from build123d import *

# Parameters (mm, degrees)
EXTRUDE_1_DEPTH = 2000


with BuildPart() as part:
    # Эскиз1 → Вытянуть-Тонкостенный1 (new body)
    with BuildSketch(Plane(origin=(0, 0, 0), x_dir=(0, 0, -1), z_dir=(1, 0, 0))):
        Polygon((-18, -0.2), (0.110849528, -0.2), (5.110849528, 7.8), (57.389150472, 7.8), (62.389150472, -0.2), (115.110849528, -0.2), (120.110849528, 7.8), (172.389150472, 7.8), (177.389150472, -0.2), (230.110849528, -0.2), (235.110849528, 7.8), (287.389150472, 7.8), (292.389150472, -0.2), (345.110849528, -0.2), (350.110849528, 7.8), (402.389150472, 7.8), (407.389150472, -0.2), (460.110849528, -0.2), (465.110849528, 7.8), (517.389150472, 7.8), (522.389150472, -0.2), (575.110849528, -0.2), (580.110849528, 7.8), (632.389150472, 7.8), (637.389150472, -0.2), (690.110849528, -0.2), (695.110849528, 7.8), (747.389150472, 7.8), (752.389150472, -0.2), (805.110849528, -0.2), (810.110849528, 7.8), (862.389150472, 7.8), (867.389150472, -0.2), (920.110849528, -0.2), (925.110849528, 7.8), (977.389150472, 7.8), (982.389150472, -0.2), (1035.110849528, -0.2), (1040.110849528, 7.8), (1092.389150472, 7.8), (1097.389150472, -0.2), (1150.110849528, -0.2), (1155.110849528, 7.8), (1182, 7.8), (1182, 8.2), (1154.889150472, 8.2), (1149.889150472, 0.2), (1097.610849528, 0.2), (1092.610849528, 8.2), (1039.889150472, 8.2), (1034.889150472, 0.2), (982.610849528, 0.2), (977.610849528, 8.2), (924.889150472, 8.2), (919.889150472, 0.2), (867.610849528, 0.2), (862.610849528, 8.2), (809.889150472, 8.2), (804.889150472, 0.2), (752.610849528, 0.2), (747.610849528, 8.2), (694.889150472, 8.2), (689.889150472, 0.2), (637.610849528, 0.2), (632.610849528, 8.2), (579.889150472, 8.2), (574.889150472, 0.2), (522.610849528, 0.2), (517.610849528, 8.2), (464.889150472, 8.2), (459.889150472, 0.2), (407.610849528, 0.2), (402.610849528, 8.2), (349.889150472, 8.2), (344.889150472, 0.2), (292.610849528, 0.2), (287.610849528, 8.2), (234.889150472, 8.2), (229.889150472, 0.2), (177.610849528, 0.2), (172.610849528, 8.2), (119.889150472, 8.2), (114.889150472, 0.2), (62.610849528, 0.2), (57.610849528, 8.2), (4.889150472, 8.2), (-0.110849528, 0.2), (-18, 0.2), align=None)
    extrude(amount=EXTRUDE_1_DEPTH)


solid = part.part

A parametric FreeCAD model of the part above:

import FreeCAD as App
import Part
import Sketcher

V = App.Vector


def add_polygon(sketch, points):
    """Adds a closed chain of lines whose ends are joined by coincident constraints."""
    first, n = sketch.GeometryCount, len(points)
    for a, b in zip(points, points[1:] + points[:1]):
        sketch.addGeometry(Part.LineSegment(App.Vector(*a, 0), App.Vector(*b, 0)), False)
    for i in range(n):
        sketch.addConstraint(Sketcher.Constraint("Coincident", first + i, 2, first + (i + 1) % n, 1))

doc = App.newDocument("Part")
params = doc.addObject("Spreadsheet::Sheet", "Params")
for row, (alias, value) in enumerate([
    ("sketch1_width", "0.4 mm"),
    ("pad1_length", "2000 mm"),
], start=1):
    params.set(f"A{row}", alias)
    params.set(f"B{row}", "=" + value)
    params.setAlias(f"B{row}", alias)

body = doc.addObject("PartDesign::Body", "Body")

# Sketch on YZ plane
sketch1 = body.newObject("Sketcher::SketchObject", "Sketch")
sketch1.AttachmentSupport = (doc.getObject("YZ_Plane"), [""])
sketch1.MapMode = "FlatFace"
add_polygon(sketch1, [(-0.2, 18), (-0.2, -0.11085), (7.8, -5.11085), (7.8, -57.38915), (-0.2, -62.38915), (-0.2, -115.11085), (7.8, -120.11085), (7.8, -172.38915), (-0.2, -177.38915), (-0.2, -230.11085), (7.8, -235.11085), (7.8, -287.38915), (-0.2, -292.38915), (-0.2, -345.11085), (7.8, -350.11085), (7.8, -402.38915), (-0.2, -407.38915), (-0.2, -460.11085), (7.8, -465.11085), (7.8, -517.38915), (-0.2, -522.38915), (-0.2, -575.11085), (7.8, -580.11085), (7.8, -632.38915), (-0.2, -637.38915), (-0.2, -690.11085), (7.8, -695.11085), (7.8, -747.38915), (-0.2, -752.38915), (-0.2, -805.11085), (7.8, -810.11085), (7.8, -862.38915), (-0.2, -867.38915), (-0.2, -920.11085), (7.8, -925.11085), (7.8, -977.38915), (-0.2, -982.38915), (-0.2, -1035.11085), (7.8, -1040.11085), (7.8, -1092.38915), (-0.2, -1097.38915), (-0.2, -1150.11085), (7.8, -1155.11085), (7.8, -1182), (8.2, -1182), (8.2, -1154.88915), (0.2, -1149.88915), (0.2, -1097.61085), (8.2, -1092.61085), (8.2, -1039.88915), (0.2, -1034.88915), (0.2, -982.61085), (8.2, -977.61085), (8.2, -924.88915), (0.2, -919.88915), (0.2, -867.61085), (8.2, -862.61085), (8.2, -809.88915), (0.2, -804.88915), (0.2, -752.61085), (8.2, -747.61085), (8.2, -694.88915), (0.2, -689.88915), (0.2, -637.61085), (8.2, -632.61085), (8.2, -579.88915), (0.2, -574.88915), (0.2, -522.61085), (8.2, -517.61085), (8.2, -464.88915), (0.2, -459.88915), (0.2, -407.61085), (8.2, -402.61085), (8.2, -349.88915), (0.2, -344.88915), (0.2, -292.61085), (8.2, -287.61085), (8.2, -234.88915), (0.2, -229.88915), (0.2, -177.61085), (8.2, -172.61085), (8.2, -119.88915), (0.2, -114.88915), (0.2, -62.61085), (8.2, -57.61085), (8.2, -4.88915), (0.2, 0.11085), (0.2, 18)])  # lines 0-87
sketch1.addConstraint([
    Sketcher.Constraint("Vertical", 0),
    Sketcher.Constraint("Vertical", 2),
    Sketcher.Constraint("Vertical", 4),
    Sketcher.Constraint("Vertical", 6),
    Sketcher.Constraint("Vertical", 8),
    Sketcher.Constraint("Vertical", 10),
    Sketcher.Constraint("Vertical", 12),
    Sketcher.Constraint("Vertical", 14),
    Sketcher.Constraint("Vertical", 16),
    Sketcher.Constraint("Vertical", 18),
    Sketcher.Constraint("Vertical", 20),
    Sketcher.Constraint("Vertical", 22),
    Sketcher.Constraint("Vertical", 24),
    Sketcher.Constraint("Vertical", 26),
    Sketcher.Constraint("Vertical", 28),
    Sketcher.Constraint("Vertical", 30),
    Sketcher.Constraint("Vertical", 32),
    Sketcher.Constraint("Vertical", 34),
    Sketcher.Constraint("Vertical", 36),
    Sketcher.Constraint("Vertical", 38),
    Sketcher.Constraint("Vertical", 40),
    Sketcher.Constraint("Vertical", 42),
    Sketcher.Constraint("Horizontal", 43),
    Sketcher.Constraint("Vertical", 44),
    Sketcher.Constraint("Vertical", 46),
    Sketcher.Constraint("Vertical", 48),
    Sketcher.Constraint("Vertical", 50),
    Sketcher.Constraint("Vertical", 52),
    Sketcher.Constraint("Vertical", 54),
    Sketcher.Constraint("Vertical", 56),
    Sketcher.Constraint("Vertical", 58),
    Sketcher.Constraint("Vertical", 60),
    Sketcher.Constraint("Vertical", 62),
    Sketcher.Constraint("Vertical", 64),
    Sketcher.Constraint("Vertical", 66),
    Sketcher.Constraint("Vertical", 68),
    Sketcher.Constraint("Vertical", 70),
    Sketcher.Constraint("Vertical", 72),
    Sketcher.Constraint("Vertical", 74),
    Sketcher.Constraint("Vertical", 76),
    Sketcher.Constraint("Vertical", 78),
    Sketcher.Constraint("Vertical", 80),
    Sketcher.Constraint("Vertical", 82),
    Sketcher.Constraint("Vertical", 84),
    Sketcher.Constraint("Vertical", 86),
    Sketcher.Constraint("Horizontal", 87),
    Sketcher.Constraint("Symmetric", 0, 2, 85, 2, -1, 1),
    Sketcher.Constraint("Parallel", 1, 5),
    Sketcher.Constraint("Parallel", 3, 7),
    Sketcher.Constraint("Parallel", 5, 9),
    Sketcher.Constraint("Parallel", 7, 11),
    Sketcher.Constraint("Parallel", 9, 13),
    Sketcher.Constraint("Parallel", 11, 15),
    Sketcher.Constraint("Parallel", 13, 17),
    Sketcher.Constraint("Parallel", 15, 19),
    Sketcher.Constraint("Parallel", 17, 21),
    Sketcher.Constraint("Parallel", 19, 23),
    Sketcher.Constraint("Parallel", 21, 25),
    Sketcher.Constraint("Parallel", 23, 27),
    Sketcher.Constraint("Parallel", 25, 29),
    Sketcher.Constraint("Parallel", 27, 31),
    Sketcher.Constraint("Parallel", 29, 33),
    Sketcher.Constraint("Parallel", 31, 35),
    Sketcher.Constraint("Parallel", 33, 37),
    Sketcher.Constraint("Parallel", 35, 39),
    Sketcher.Constraint("Parallel", 37, 41),
    Sketcher.Constraint("Parallel", 41, 45),
    Sketcher.Constraint("Parallel", 39, 47),
    Sketcher.Constraint("Parallel", 45, 49),
    Sketcher.Constraint("Parallel", 47, 51),
    Sketcher.Constraint("Parallel", 49, 53),
    Sketcher.Constraint("Parallel", 51, 55),
    Sketcher.Constraint("Parallel", 53, 57),
    Sketcher.Constraint("Parallel", 55, 59),
    Sketcher.Constraint("Parallel", 57, 61),
    Sketcher.Constraint("Parallel", 59, 63),
    Sketcher.Constraint("Parallel", 61, 65),
    Sketcher.Constraint("Parallel", 63, 67),
    Sketcher.Constraint("Parallel", 65, 69),
    Sketcher.Constraint("Parallel", 67, 71),
    Sketcher.Constraint("Parallel", 69, 73),
    Sketcher.Constraint("Parallel", 71, 75),
    Sketcher.Constraint("Parallel", 73, 77),
    Sketcher.Constraint("Parallel", 75, 79),
    Sketcher.Constraint("Parallel", 77, 81),
    Sketcher.Constraint("Parallel", 79, 83),
    Sketcher.Constraint("Parallel", 81, 85),
    Sketcher.Constraint("Vertical", 0, 2, 3, 2),
    Sketcher.Constraint("Vertical", 2, 2, 5, 2),
    Sketcher.Constraint("Vertical", 4, 2, 7, 2),
    Sketcher.Constraint("Vertical", 6, 2, 9, 2),
    Sketcher.Constraint("Vertical", 8, 2, 11, 2),
    Sketcher.Constraint("Vertical", 10, 2, 13, 2),
    Sketcher.Constraint("Vertical", 12, 2, 15, 2),
    Sketcher.Constraint("Vertical", 14, 2, 17, 2),
    Sketcher.Constraint("Vertical", 16, 2, 19, 2),
    Sketcher.Constraint("Vertical", 18, 2, 21, 2),
    Sketcher.Constraint("Vertical", 20, 2, 23, 2),
    Sketcher.Constraint("Vertical", 22, 2, 25, 2),
    Sketcher.Constraint("Vertical", 24, 2, 27, 2),
    Sketcher.Constraint("Vertical", 26, 2, 29, 2),
    Sketcher.Constraint("Vertical", 28, 2, 31, 2),
    Sketcher.Constraint("Vertical", 30, 2, 33, 2),
    Sketcher.Constraint("Vertical", 32, 2, 35, 2),
    Sketcher.Constraint("Vertical", 34, 2, 37, 2),
    Sketcher.Constraint("Vertical", 36, 2, 39, 2),
    Sketcher.Constraint("Vertical", 38, 2, 41, 2),
    Sketcher.Constraint("Vertical", 44, 2, 47, 2),
    Sketcher.Constraint("Vertical", 46, 2, 49, 2),
    Sketcher.Constraint("Vertical", 48, 2, 51, 2),
    Sketcher.Constraint("Vertical", 50, 2, 53, 2),
    Sketcher.Constraint("Vertical", 52, 2, 55, 2),
    Sketcher.Constraint("Vertical", 54, 2, 57, 2),
    Sketcher.Constraint("Vertical", 56, 2, 59, 2),
    Sketcher.Constraint("Vertical", 58, 2, 61, 2),
    Sketcher.Constraint("Vertical", 60, 2, 63, 2),
    Sketcher.Constraint("Vertical", 62, 2, 65, 2),
    Sketcher.Constraint("Vertical", 64, 2, 67, 2),
    Sketcher.Constraint("Vertical", 66, 2, 69, 2),
    Sketcher.Constraint("Vertical", 68, 2, 71, 2),
    Sketcher.Constraint("Vertical", 70, 2, 73, 2),
    Sketcher.Constraint("Vertical", 72, 2, 75, 2),
    Sketcher.Constraint("Vertical", 74, 2, 77, 2),
    Sketcher.Constraint("Vertical", 76, 2, 79, 2),
    Sketcher.Constraint("Vertical", 78, 2, 81, 2),
    Sketcher.Constraint("Vertical", 80, 2, 83, 2),
    Sketcher.Constraint("Vertical", 82, 2, 85, 2),
    Sketcher.Constraint("Equal", 43, 87),
    Sketcher.Constraint("Equal", 2, 6),
    Sketcher.Constraint("Equal", 4, 8),
    Sketcher.Constraint("Equal", 6, 10),
    Sketcher.Constraint("Equal", 8, 12),
    Sketcher.Constraint("Equal", 10, 14),
    Sketcher.Constraint("Equal", 12, 16),
    Sketcher.Constraint("Equal", 14, 18),
    Sketcher.Constraint("Equal", 16, 20),
    Sketcher.Constraint("Equal", 18, 22),
    Sketcher.Constraint("Equal", 20, 24),
    Sketcher.Constraint("Equal", 22, 26),
    Sketcher.Constraint("Equal", 24, 28),
    Sketcher.Constraint("Equal", 26, 30),
    Sketcher.Constraint("Equal", 28, 32),
    Sketcher.Constraint("Equal", 30, 34),
    Sketcher.Constraint("Equal", 32, 36),
    Sketcher.Constraint("Equal", 34, 38),
    Sketcher.Constraint("Equal", 36, 40),
    Sketcher.Constraint("Equal", 38, 46),
    Sketcher.Constraint("Equal", 40, 48),
    Sketcher.Constraint("Equal", 46, 50),
    Sketcher.Constraint("Equal", 48, 52),
    Sketcher.Constraint("Equal", 50, 54),
    Sketcher.Constraint("Equal", 52, 56),
    Sketcher.Constraint("Equal", 54, 58),
    Sketcher.Constraint("Equal", 56, 60),
    Sketcher.Constraint("Equal", 58, 62),
    Sketcher.Constraint("Equal", 60, 64),
    Sketcher.Constraint("Equal", 62, 66),
    Sketcher.Constraint("Equal", 64, 68),
    Sketcher.Constraint("Equal", 66, 70),
    Sketcher.Constraint("Equal", 68, 72),
    Sketcher.Constraint("Equal", 70, 74),
    Sketcher.Constraint("Equal", 72, 76),
    Sketcher.Constraint("Equal", 74, 78),
    Sketcher.Constraint("Equal", 76, 80),
    Sketcher.Constraint("Equal", 78, 82),
    Sketcher.Constraint("Equal", 80, 84),
    Sketcher.Constraint("Equal", 1, 3),
    Sketcher.Constraint("DistanceX", 43, 1, 43, 2, 0.4),
    Sketcher.Constraint("DistanceY", 42, 2, -1, 1, 1182.0),
    Sketcher.Constraint("DistanceY", -1, 1, 86, 2, 18.0),
    Sketcher.Constraint("DistanceX", -1, 1, 1, 2, 7.8),
    Sketcher.Constraint("DistanceY", 2, 2, 2, 1, 52.278301),
    Sketcher.Constraint("DistanceY", 4, 2, 4, 1, 52.721699),
    Sketcher.Constraint("DistanceY", 0, 2, 0, 1, 18.11085),
    Sketcher.Constraint("DistanceY", 42, 2, 42, 1, 26.88915),
])
sketch1.setExpression("Constraints[255]", "Params.sketch1_width")
pad1 = body.newObject("PartDesign::Pad", "Pad")
pad1.Profile = sketch1
pad1.setExpression("Length", "Params.pad1_length")

doc.recompute()
